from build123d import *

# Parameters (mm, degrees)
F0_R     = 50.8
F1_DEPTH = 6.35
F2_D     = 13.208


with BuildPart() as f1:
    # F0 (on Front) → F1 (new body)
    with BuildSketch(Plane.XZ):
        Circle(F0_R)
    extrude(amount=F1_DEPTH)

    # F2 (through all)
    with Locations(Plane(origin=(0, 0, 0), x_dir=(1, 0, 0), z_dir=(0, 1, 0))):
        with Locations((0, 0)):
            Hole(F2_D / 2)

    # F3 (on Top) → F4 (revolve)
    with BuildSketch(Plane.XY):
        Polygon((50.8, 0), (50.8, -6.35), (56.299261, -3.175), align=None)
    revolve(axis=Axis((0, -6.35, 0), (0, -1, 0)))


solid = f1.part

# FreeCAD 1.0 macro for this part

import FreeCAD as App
import Part
import Sketcher
from FreeCAD import Vector
Q = App.Units.Quantity


def add_polygon(sketch, points):
    """Adds a closed chain of lines whose ends are joined by coincident constraints."""
    first, n = sketch.GeometryCount, len(points)
    for a, b in zip(points, points[1:] + points[:1]):
        sketch.addGeometry(Part.LineSegment(App.Vector(*a, 0), App.Vector(*b, 0)), False)
    for i in range(n):
        sketch.addConstraint(Sketcher.Constraint("Coincident", first + i, 2, first + (i + 1) % n, 1))

doc = App.newDocument("Part")
params = doc.addObject("Spreadsheet::Sheet", "Params")
for row, (alias, value) in enumerate([
    ("sketch1_diameter", "4 in"),
    ("pad1_length", "0.25 in"),
    ("sketch2_diameter", "0.52 in"),
    ("hole_diameter", "0.52 in"),
    ("sketch3_height", "0.25 in"),
    ("revolution_angle", "360 deg"),
], start=1):
    params.set(f"A{row}", alias)
    params.set(f"B{row}", "=" + value)
    params.setAlias(f"B{row}", alias)

body = doc.addObject("PartDesign::Body", "Body")

# Sketch on XZ plane
sketch1 = doc.addObject("Sketcher::SketchObject", "Sketch")
body.addObject(sketch1)
sketch1.AttachmentSupport = (doc.XZ_Plane, [""])
sketch1.MapMode = "FlatFace"
sketch1.addGeometry(Part.Circle(Vector(0, 0, 0), Vector(0, 0, 1), 51), False)
sketch1.addConstraint(Sketcher.Constraint("Coincident", 0, 3, -1, 1))
sketch1.addConstraint(Sketcher.Constraint("Diameter", 0, Q("4 in")))
sketch1.setExpression("Constraints[1]", "Params.sketch1_diameter")
pad1 = doc.addObject("PartDesign::Pad", "Pad")
body.addObject(pad1)
pad1.Profile = sketch1
pad1.setExpression("Length", "Params.pad1_length")

# Sketch on XZ plane
sketch2 = doc.addObject("Sketcher::SketchObject", "Sketch001")
body.addObject(sketch2)
sketch2.AttachmentSupport = (doc.XZ_Plane, [""])
sketch2.MapMode = "FlatFace"
sketch2.addGeometry(Part.Circle(Vector(0, 0, 0), Vector(0, 0, 1), 7), False)
sketch2.addConstraint(Sketcher.Constraint("Coincident", 0, 3, -1, 1))
sketch2.addConstraint(Sketcher.Constraint("Diameter", 0, Q("0.52 in")))
sketch2.setExpression("Constraints[1]", "Params.sketch2_diameter")
doc.recompute()
hole = doc.addObject("PartDesign::Hole", "Hole")
body.addObject(hole)
hole.Profile = sketch2
hole.ThreadType = "None"
hole.setExpression("Diameter", "Params.hole_diameter")
hole.DepthType = "ThroughAll"
hole.Reversed = True

# Sketch on XY plane
sketch3 = doc.addObject("Sketcher::SketchObject", "Sketch002")
body.addObject(sketch3)
sketch3.AttachmentSupport = (doc.XY_Plane, [""])
sketch3.MapMode = "FlatFace"
add_polygon(sketch3, [(51, 0), (51, -6), (56, -3)])  # lines 0-2
sketch3.addConstraint(Sketcher.Constraint("Vertical", 0))
sketch3.addConstraint(Sketcher.Constraint("PointOnObject", 2, 2, -1))
sketch3.addConstraint(Sketcher.Constraint("Equal", 1, 2))
sketch3.addConstraint(Sketcher.Constraint("DistanceX", -1, 1, 0, 2, Q("2 in")))
sketch3.addConstraint(Sketcher.Constraint("Angle", 1, Q("30.000001 deg")))
sketch3.addConstraint(Sketcher.Constraint("DistanceY", 0, 2, 0, 1, Q("0.25 in")))
sketch3.setExpression("Constraints[8]", "Params.sketch3_height")
revolution = doc.addObject("PartDesign::Revolution", "Revolution")
body.addObject(revolution)
revolution.Profile = sketch3
revolution.ReferenceAxis = (sketch3, ["V_Axis"])
revolution.setExpression("Angle", "Params.revolution_angle")

doc.recompute()
